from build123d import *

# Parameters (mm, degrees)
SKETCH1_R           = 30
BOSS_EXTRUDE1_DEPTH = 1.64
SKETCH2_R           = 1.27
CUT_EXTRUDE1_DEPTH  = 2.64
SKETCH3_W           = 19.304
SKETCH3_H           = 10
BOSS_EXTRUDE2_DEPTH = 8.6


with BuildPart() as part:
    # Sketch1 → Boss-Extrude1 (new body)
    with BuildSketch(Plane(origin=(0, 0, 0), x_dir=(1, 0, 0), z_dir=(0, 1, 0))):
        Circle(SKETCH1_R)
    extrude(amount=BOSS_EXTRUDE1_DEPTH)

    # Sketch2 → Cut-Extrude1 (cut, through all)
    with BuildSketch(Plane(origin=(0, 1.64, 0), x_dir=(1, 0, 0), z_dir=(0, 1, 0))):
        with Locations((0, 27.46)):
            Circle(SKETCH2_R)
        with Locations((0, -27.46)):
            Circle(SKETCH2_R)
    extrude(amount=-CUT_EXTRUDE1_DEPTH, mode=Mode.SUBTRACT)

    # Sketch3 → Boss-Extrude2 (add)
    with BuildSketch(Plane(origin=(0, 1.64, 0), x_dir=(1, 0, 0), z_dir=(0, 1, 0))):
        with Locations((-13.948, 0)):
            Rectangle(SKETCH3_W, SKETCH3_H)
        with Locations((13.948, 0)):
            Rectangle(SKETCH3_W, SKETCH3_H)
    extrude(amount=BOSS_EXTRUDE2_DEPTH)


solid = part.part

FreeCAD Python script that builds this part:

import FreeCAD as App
import Part
import Sketcher
from FreeCAD import Vector

doc = App.newDocument("Part")
params = doc.addObject("Spreadsheet::Sheet", "Params")
for row, (alias, value) in enumerate([
    ("sketch1_diameter", "60 mm"),
    ("pad1_length", "1.64 mm"),
    ("sketch2_diameter", "2.54 mm"),
    ("sketch3_height", "10 mm"),
    ("pad2_length", "8.6 mm"),
], start=1):
    params.set(f"A{row}", alias)
    params.set(f"B{row}", "=" + value)
    params.setAlias(f"B{row}", alias)

body = doc.addObject("PartDesign::Body", "Body")

# Sketch on XZ plane
sketch1 = body.newObject("Sketcher::SketchObject", "Sketch")
sketch1.AttachmentSupport = (doc.getObject("XZ_Plane"), [""])
sketch1.MapMode = "FlatFace"
sketch1.addGeometry(Part.Circle(Vector(0, 0, 0), Vector(0, 0, 1), 30), False)
sketch1.addConstraint(Sketcher.Constraint("Coincident", 0, 3, -1, 1))
sketch1.addConstraint(Sketcher.Constraint("Diameter", 0, 60.0))
sketch1.setExpression("Constraints[1]", "Params.sketch1_diameter")
pad1 = body.newObject("PartDesign::Pad", "Pad")
pad1.Profile = sketch1
pad1.setExpression("Length", "Params.pad1_length")
pad1.Reversed = True

# Sketch on XZ plane
sketch2 = body.newObject("Sketcher::SketchObject", "Sketch001")
sketch2.AttachmentSupport = (doc.getObject("XZ_Plane"), [""])
sketch2.MapMode = "FlatFace"
sketch2.AttachmentOffset = App.Placement(Vector(0, 0, -1.64), App.Rotation())
sketch2.addGeometry(Part.Circle(Vector(0, -27.5, 0), Vector(0, 0, 1), 1.3), False)
sketch2.addGeometry(Part.Circle(Vector(0, 27.5, 0), Vector(0, 0, 1), 1.3), False)
sketch2.addConstraint(Sketcher.Constraint("Equal", 0, 1))
sketch2.addConstraint(Sketcher.Constraint("Symmetric", 0, 3, 1, 3, -1, 1))
sketch2.addConstraint(Sketcher.Constraint("PointOnObject", 0, 3, -2))
sketch2.addConstraint(Sketcher.Constraint("Diameter", 0, 2.54))
sketch2.addConstraint(Sketcher.Constraint("DistanceY", 0, 3, -1, 1, 27.46))
sketch2.setExpression("Constraints[3]", "Params.sketch2_diameter")
pocket1 = body.newObject("PartDesign::Pocket", "Pocket")
pocket1.Profile = sketch2
pocket1.Type = "ThroughAll"
pocket1.Reversed = True

# Sketch on XZ plane
sketch3 = body.newObject("Sketcher::SketchObject", "Sketch002")
sketch3.AttachmentSupport = (doc.getObject("XZ_Plane"), [""])
sketch3.MapMode = "FlatFace"
sketch3.AttachmentOffset = App.Placement(Vector(0, 0, -1.64), App.Rotation())
sketch3.addGeometry(Part.LineSegment(Vector(-24, -5, 0), Vector(-24, 5, 0)), False)
sketch3.addGeometry(Part.LineSegment(Vector(-24, 5, 0), Vector(-4, 5, 0)), False)
sketch3.addGeometry(Part.LineSegment(Vector(-4, 5, 0), Vector(-4, -5, 0)), False)
sketch3.addGeometry(Part.LineSegment(Vector(-4, -5, 0), Vector(-24, -5, 0)), False)
sketch3.addGeometry(Part.LineSegment(Vector(4, -5, 0), Vector(4, 5, 0)), False)
sketch3.addGeometry(Part.LineSegment(Vector(4, 5, 0), Vector(24, 5, 0)), False)
sketch3.addGeometry(Part.LineSegment(Vector(24, 5, 0), Vector(24, -5, 0)), False)
sketch3.addGeometry(Part.LineSegment(Vector(24, -5, 0), Vector(4, -5, 0)), False)
sketch3.addConstraint(Sketcher.Constraint("Coincident", 0, 2, 1, 1))
sketch3.addConstraint(Sketcher.Constraint("Coincident", 1, 2, 2, 1))
sketch3.addConstraint(Sketcher.Constraint("Coincident", 2, 2, 3, 1))
sketch3.addConstraint(Sketcher.Constraint("Coincident", 3, 2, 0, 1))
sketch3.addConstraint(Sketcher.Constraint("Coincident", 4, 2, 5, 1))
sketch3.addConstraint(Sketcher.Constraint("Coincident", 5, 2, 6, 1))
sketch3.addConstraint(Sketcher.Constraint("Coincident", 6, 2, 7, 1))
sketch3.addConstraint(Sketcher.Constraint("Coincident", 7, 2, 4, 1))
sketch3.addConstraint(Sketcher.Constraint("Vertical", 0))
sketch3.addConstraint(Sketcher.Constraint("Horizontal", 1))
sketch3.addConstraint(Sketcher.Constraint("Vertical", 2))
sketch3.addConstraint(Sketcher.Constraint("Horizontal", 3))
sketch3.addConstraint(Sketcher.Constraint("Vertical", 4))
sketch3.addConstraint(Sketcher.Constraint("Horizontal", 5))
sketch3.addConstraint(Sketcher.Constraint("Vertical", 6))
sketch3.addConstraint(Sketcher.Constraint("Horizontal", 7))
sketch3.addConstraint(Sketcher.Constraint("Symmetric", 2, 2, 4, 2, -1, 1))
sketch3.addConstraint(Sketcher.Constraint("Symmetric", 0, 2, 6, 2, -1, 1))
sketch3.addConstraint(Sketcher.Constraint("Horizontal", 1, 2, 4, 2))
sketch3.addConstraint(Sketcher.Constraint("DistanceY", 0, 1, 0, 2, 10.0))
sketch3.addConstraint(Sketcher.Constraint("DistanceX", 0, 2, -1, 1, 23.6))
sketch3.addConstraint(Sketcher.Constraint("DistanceX", 1, 1, 1, 2, 19.304))
sketch3.setExpression("Constraints[19]", "Params.sketch3_height")
pad2 = body.newObject("PartDesign::Pad", "Pad001")
pad2.Profile = sketch3
pad2.setExpression("Length", "Params.pad2_length")
pad2.Reversed = True

doc.recompute()
